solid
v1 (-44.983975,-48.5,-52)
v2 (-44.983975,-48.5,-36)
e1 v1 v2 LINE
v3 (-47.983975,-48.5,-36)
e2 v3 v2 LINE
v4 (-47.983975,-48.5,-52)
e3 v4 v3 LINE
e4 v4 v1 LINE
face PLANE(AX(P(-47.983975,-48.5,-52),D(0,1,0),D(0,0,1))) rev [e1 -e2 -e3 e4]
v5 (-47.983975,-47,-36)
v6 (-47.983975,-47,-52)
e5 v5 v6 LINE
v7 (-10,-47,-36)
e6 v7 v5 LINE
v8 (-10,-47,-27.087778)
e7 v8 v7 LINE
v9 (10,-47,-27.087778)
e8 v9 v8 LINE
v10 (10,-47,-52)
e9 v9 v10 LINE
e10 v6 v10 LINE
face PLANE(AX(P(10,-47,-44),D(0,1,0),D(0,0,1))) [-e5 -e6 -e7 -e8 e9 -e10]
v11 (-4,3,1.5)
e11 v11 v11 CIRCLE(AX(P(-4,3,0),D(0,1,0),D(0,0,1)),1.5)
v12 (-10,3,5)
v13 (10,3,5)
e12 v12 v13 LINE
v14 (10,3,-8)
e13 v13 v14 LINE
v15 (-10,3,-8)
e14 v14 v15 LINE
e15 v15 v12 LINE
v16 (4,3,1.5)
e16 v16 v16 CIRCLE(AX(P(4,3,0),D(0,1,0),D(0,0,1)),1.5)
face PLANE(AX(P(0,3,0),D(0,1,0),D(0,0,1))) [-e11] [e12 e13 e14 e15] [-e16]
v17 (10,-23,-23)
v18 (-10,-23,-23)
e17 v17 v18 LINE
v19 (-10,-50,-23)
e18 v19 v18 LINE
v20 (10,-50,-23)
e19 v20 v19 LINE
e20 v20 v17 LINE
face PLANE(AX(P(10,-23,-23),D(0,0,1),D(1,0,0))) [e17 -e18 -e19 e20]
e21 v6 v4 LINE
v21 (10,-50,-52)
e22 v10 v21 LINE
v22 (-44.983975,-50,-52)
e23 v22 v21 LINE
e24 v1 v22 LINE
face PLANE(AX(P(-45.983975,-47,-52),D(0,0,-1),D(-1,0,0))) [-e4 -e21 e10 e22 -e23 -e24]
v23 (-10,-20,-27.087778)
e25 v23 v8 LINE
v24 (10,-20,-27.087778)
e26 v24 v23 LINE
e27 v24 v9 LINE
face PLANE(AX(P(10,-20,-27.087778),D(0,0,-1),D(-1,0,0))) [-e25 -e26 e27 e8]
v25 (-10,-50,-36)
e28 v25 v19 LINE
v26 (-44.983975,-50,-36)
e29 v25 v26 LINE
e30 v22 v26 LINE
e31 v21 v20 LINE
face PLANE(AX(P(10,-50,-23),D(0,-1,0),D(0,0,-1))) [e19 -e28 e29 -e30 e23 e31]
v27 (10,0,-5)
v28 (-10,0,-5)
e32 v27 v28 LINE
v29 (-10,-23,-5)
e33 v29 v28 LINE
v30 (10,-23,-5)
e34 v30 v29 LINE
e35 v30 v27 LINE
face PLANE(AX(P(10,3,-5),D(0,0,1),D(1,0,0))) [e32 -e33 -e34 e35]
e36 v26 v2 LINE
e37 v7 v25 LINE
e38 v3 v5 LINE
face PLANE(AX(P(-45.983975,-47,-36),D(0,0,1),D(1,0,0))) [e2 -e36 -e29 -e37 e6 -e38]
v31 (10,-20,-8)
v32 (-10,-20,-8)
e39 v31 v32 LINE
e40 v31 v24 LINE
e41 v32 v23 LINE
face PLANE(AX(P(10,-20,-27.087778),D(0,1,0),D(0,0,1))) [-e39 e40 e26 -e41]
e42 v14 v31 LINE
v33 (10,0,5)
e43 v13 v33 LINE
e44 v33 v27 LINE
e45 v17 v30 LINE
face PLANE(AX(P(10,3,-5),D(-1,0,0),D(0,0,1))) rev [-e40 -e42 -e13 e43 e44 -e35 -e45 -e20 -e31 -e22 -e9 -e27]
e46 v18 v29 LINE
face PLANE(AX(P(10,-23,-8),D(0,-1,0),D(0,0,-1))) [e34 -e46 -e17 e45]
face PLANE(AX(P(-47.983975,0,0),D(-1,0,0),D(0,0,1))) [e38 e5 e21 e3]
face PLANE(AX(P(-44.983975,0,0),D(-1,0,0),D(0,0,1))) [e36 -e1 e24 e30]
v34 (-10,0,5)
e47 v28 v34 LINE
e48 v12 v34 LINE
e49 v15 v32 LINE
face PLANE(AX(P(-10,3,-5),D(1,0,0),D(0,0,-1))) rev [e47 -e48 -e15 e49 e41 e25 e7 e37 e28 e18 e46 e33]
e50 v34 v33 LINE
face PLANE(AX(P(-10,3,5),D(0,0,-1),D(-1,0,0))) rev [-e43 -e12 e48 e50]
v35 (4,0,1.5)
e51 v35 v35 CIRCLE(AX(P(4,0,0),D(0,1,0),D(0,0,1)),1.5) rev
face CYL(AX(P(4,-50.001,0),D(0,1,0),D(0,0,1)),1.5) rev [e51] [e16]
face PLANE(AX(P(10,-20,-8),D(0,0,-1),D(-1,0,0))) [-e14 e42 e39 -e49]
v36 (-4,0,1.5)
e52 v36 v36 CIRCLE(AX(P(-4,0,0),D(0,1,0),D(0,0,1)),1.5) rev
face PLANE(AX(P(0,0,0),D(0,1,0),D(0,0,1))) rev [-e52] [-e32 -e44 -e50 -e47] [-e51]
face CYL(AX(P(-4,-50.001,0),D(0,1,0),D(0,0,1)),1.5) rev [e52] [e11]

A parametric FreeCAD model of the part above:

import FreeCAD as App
import Part
import Sketcher

V = App.Vector

doc = App.newDocument("Part")
params = doc.addObject("Spreadsheet::Sheet", "Params")
for row, (alias, value) in enumerate([
    ("sketch1_width", "20 mm"),
    ("sketch1_height", "10 mm"),
    ("pad1_length", "3 mm"),
    ("sketch2_width", "23 mm"),
    ("sketch2_width2", "27 mm"),
    ("sketch2_width3", "3 mm"),
    ("sketch2_height", "21 mm"),
    ("sketch2_height2", "18 mm"),
    ("pad2_length", "20 mm"),
    ("sketch3_diameter", "3 mm"),
    ("sketch4_diameter", "3 mm"),
    ("sketch5_height", "16 mm"),
    ("pad3_length", "3 mm"),
    ("sketch6_width", "3 mm"),
    ("sketch6_height", "16 mm"),
    ("pocket3_length", "1 mm"),
    ("sketch7_height", "16 mm"),
    ("sketch7_width", "1.5 mm"),
    ("pad4_length", "3 mm"),
], start=1):
    params.set(f"A{row}", alias)
    params.set(f"B{row}", "=" + value)
    params.setAlias(f"B{row}", alias)

body = doc.addObject("PartDesign::Body", "Body")

# Sketch on XZ plane
sketch1 = body.newObject("Sketcher::SketchObject", "Sketch")
sketch1.AttachmentSupport = (doc.getObject("XZ_Plane"), [""])
sketch1.MapMode = "FlatFace"
sketch1.addGeometry([
    Part.LineSegment(V(-10, -5, 0), V(-10, 5, 0)),
    Part.LineSegment(V(-10, 5, 0), V(10, 5, 0)),
    Part.LineSegment(V(10, 5, 0), V(10, -5, 0)),
    Part.LineSegment(V(10, -5, 0), V(-10, -5, 0)),
], False)
sketch1.addConstraint([
    Sketcher.Constraint("Coincident", 0, 2, 1, 1),
    Sketcher.Constraint("Coincident", 1, 2, 2, 1),
    Sketcher.Constraint("Coincident", 2, 2, 3, 1),
    Sketcher.Constraint("Coincident", 3, 2, 0, 1),
    Sketcher.Constraint("Vertical", 0),
    Sketcher.Constraint("Horizontal", 1),
    Sketcher.Constraint("Vertical", 2),
    Sketcher.Constraint("Horizontal", 3),
    Sketcher.Constraint("Symmetric", 0, 2, 2, 2, -1, 1),
    Sketcher.Constraint("DistanceX", 1, 1, 1, 2, 20.0),
    Sketcher.Constraint("DistanceY", 0, 1, 0, 2, 10.0),
])
sketch1.setExpression("Constraints[9]", "Params.sketch1_width")
sketch1.setExpression("Constraints[10]", "Params.sketch1_height")
pad1 = body.newObject("PartDesign::Pad", "Pad")
pad1.Profile = sketch1
pad1.setExpression("Length", "Params.pad1_length")
pad1.Reversed = True

# Sketch on YZ plane
sketch2 = body.newObject("Sketcher::SketchObject", "Sketch001")
sketch2.AttachmentSupport = (doc.getObject("YZ_Plane"), [""])
sketch2.MapMode = "FlatFace"
sketch2.AttachmentOffset = App.Placement(V(0, 0, -10), App.Rotation())
sketch2.addGeometry([
    Part.LineSegment(V(3, -8, 0), V(-20, -8, 0)),  # 0
    Part.LineSegment(V(-20, -8, 0), V(-20, -27.1, 0)),  # 1
    Part.LineSegment(V(-20, -27.1, 0), V(-47, -27.1, 0)),  # 2
    Part.LineSegment(V(-47, -27.1, 0), V(-47, -44, 0)),  # 3
    Part.LineSegment(V(-47, -44, 0), V(-50, -44, 0)),  # 4
    Part.LineSegment(V(-50, -44, 0), V(-50, -23, 0)),  # 5
    Part.LineSegment(V(-50, -23, 0), V(-23, -23, 0)),  # 6
    Part.LineSegment(V(-23, -23, 0), V(-23, -5, 0)),  # 7
    Part.LineSegment(V(-23, -5, 0), V(3, -5, 0)),  # 8
    Part.LineSegment(V(3, -5, 0), V(3, -8, 0)),  # 9
], False)
sketch2.addConstraint([
    Sketcher.Constraint("Coincident", 0, 2, 1, 1),
    Sketcher.Constraint("Coincident", 1, 2, 2, 1),
    Sketcher.Constraint("Coincident", 2, 2, 3, 1),
    Sketcher.Constraint("Coincident", 3, 2, 4, 1),
    Sketcher.Constraint("Coincident", 4, 2, 5, 1),
    Sketcher.Constraint("Coincident", 5, 2, 6, 1),
    Sketcher.Constraint("Coincident", 6, 2, 7, 1),
    Sketcher.Constraint("Coincident", 7, 2, 8, 1),
    Sketcher.Constraint("Coincident", 8, 2, 9, 1),
    Sketcher.Constraint("Coincident", 9, 2, 0, 1),
    Sketcher.Constraint("Horizontal", 0),
    Sketcher.Constraint("Vertical", 1),
    Sketcher.Constraint("Horizontal", 2),
    Sketcher.Constraint("Vertical", 3),
    Sketcher.Constraint("Horizontal", 4),
    Sketcher.Constraint("Vertical", 5),
    Sketcher.Constraint("Horizontal", 6),
    Sketcher.Constraint("Vertical", 7),
    Sketcher.Constraint("Horizontal", 8),
    Sketcher.Constraint("Vertical", 9),
    Sketcher.Constraint("Equal", 2, 6),
    Sketcher.Constraint("Equal", 4, 9),
    Sketcher.Constraint("DistanceX", 0, 2, 0, 1, 23.0),
    Sketcher.Constraint("DistanceX", 2, 2, 2, 1, 27.0),
    Sketcher.Constraint("DistanceX", 4, 2, 4, 1, 3.0),
    Sketcher.Constraint("DistanceY", 5, 1, 5, 2, 21.0),
    Sketcher.Constraint("DistanceY", 7, 1, 7, 2, 18.0),
    Sketcher.Constraint("DistanceX", 0, 2, -1, 1, 20.0),
    Sketcher.Constraint("DistanceY", 0, 2, -1, 1, 8.0),
    Sketcher.Constraint("DistanceY", 1, 2, 1, 1, 19.087778),
])
sketch2.setExpression("Constraints[22]", "Params.sketch2_width")
sketch2.setExpression("Constraints[23]", "Params.sketch2_width2")
sketch2.setExpression("Constraints[24]", "Params.sketch2_width3")
sketch2.setExpression("Constraints[25]", "Params.sketch2_height")
sketch2.setExpression("Constraints[26]", "Params.sketch2_height2")
pad2 = body.newObject("PartDesign::Pad", "Pad001")
pad2.Profile = sketch2
pad2.setExpression("Length", "Params.pad2_length")

# Sketch on XZ plane
sketch3 = body.newObject("Sketcher::SketchObject", "Sketch002")
sketch3.AttachmentSupport = (doc.getObject("XZ_Plane"), [""])
sketch3.MapMode = "FlatFace"
sketch3.AttachmentOffset = App.Placement(V(0, 0, -3), App.Rotation())
sketch3.addGeometry(Part.Circle(V(4, 0, 0), V(0, 0, 1), 1.5), False)
sketch3.addConstraint([
    Sketcher.Constraint("PointOnObject", 0, 3, -1),
    Sketcher.Constraint("Diameter", 0, 3.0),
    Sketcher.Constraint("DistanceX", -1, 1, 0, 3, 4.0),
])
sketch3.setExpression("Constraints[1]", "Params.sketch3_diameter")
pocket1 = body.newObject("PartDesign::Pocket", "Pocket")
pocket1.Profile = sketch3
pocket1.Type = "UpToFirst"
pocket1.Reversed = True

# Sketch on XZ plane
sketch4 = body.newObject("Sketcher::SketchObject", "Sketch003")
sketch4.AttachmentSupport = (doc.getObject("XZ_Plane"), [""])
sketch4.MapMode = "FlatFace"
sketch4.AttachmentOffset = App.Placement(V(0, 0, -3), App.Rotation())
sketch4.addGeometry(Part.Circle(V(-4, 0, 0), V(0, 0, 1), 1.5), False)
sketch4.addConstraint([
    Sketcher.Constraint("PointOnObject", 0, 3, -1),
    Sketcher.Constraint("Diameter", 0, 3.0),
    Sketcher.Constraint("DistanceX", 0, 3, -1, 1, 4.0),
])
sketch4.setExpression("Constraints[1]", "Params.sketch4_diameter")
pocket2 = body.newObject("PartDesign::Pocket", "Pocket001")
pocket2.Profile = sketch4
pocket2.Type = "UpToFirst"
pocket2.Reversed = True

# Sketch on XZ plane
sketch5 = body.newObject("Sketcher::SketchObject", "Sketch004")
sketch5.AttachmentSupport = (doc.getObject("XZ_Plane"), [""])
sketch5.MapMode = "FlatFace"
sketch5.AttachmentOffset = App.Placement(V(0, 0, 50), App.Rotation())
sketch5.addGeometry([
    Part.LineSegment(V(-46, -36, 0), V(-46, -52, 0)),
    Part.LineSegment(V(-46, -52, 0), V(10, -52, 0)),
    Part.LineSegment(V(10, -52, 0), V(10, -36, 0)),
    Part.LineSegment(V(10, -36, 0), V(-46, -36, 0)),
], False)
sketch5.addConstraint([
    Sketcher.Constraint("Coincident", 0, 2, 1, 1),
    Sketcher.Constraint("Coincident", 1, 2, 2, 1),
    Sketcher.Constraint("Coincident", 2, 2, 3, 1),
    Sketcher.Constraint("Coincident", 3, 2, 0, 1),
    Sketcher.Constraint("Vertical", 0),
    Sketcher.Constraint("Horizontal", 1),
    Sketcher.Constraint("Vertical", 2),
    Sketcher.Constraint("Horizontal", 3),
    Sketcher.Constraint("DistanceY", 0, 2, 0, 1, 16.0),
    Sketcher.Constraint("DistanceY", 0, 2, -1, 1, 52.0),
    Sketcher.Constraint("DistanceX", -1, 1, 1, 2, 10.0),
    Sketcher.Constraint("DistanceX", 1, 1, 1, 2, 55.983975),
])
sketch5.setExpression("Constraints[8]", "Params.sketch5_height")
pad3 = body.newObject("PartDesign::Pad", "Pad002")
pad3.Profile = sketch5
pad3.setExpression("Length", "Params.pad3_length")
pad3.Reversed = True

# Sketch on YZ plane
sketch6 = body.newObject("Sketcher::SketchObject", "Sketch005")
sketch6.AttachmentSupport = (doc.getObject("YZ_Plane"), [""])
sketch6.MapMode = "FlatFace"
sketch6.AttachmentOffset = App.Placement(V(0, 0, -45.983975), App.Rotation())
sketch6.addGeometry([
    Part.LineSegment(V(-47, -52, 0), V(-50, -52, 0)),
    Part.LineSegment(V(-50, -52, 0), V(-50, -36, 0)),
    Part.LineSegment(V(-50, -36, 0), V(-47, -36, 0)),
    Part.LineSegment(V(-47, -36, 0), V(-47, -52, 0)),
], False)
sketch6.addConstraint([
    Sketcher.Constraint("Coincident", 0, 2, 1, 1),
    Sketcher.Constraint("Coincident", 1, 2, 2, 1),
    Sketcher.Constraint("Coincident", 2, 2, 3, 1),
    Sketcher.Constraint("Coincident", 3, 2, 0, 1),
    Sketcher.Constraint("Horizontal", 0),
    Sketcher.Constraint("Vertical", 1),
    Sketcher.Constraint("Horizontal", 2),
    Sketcher.Constraint("Vertical", 3),
    Sketcher.Constraint("DistanceX", 0, 2, 0, 1, 3.0),
    Sketcher.Constraint("DistanceY", 1, 1, 1, 2, 16.0),
    Sketcher.Constraint("DistanceX", 0, 2, -1, 1, 50.0),
    Sketcher.Constraint("DistanceY", 0, 2, -1, 1, 52.0),
])
sketch6.setExpression("Constraints[8]", "Params.sketch6_width")
sketch6.setExpression("Constraints[9]", "Params.sketch6_height")
pocket3 = body.newObject("PartDesign::Pocket", "Pocket002")
pocket3.Profile = sketch6
pocket3.setExpression("Length", "Params.pocket3_length")
pocket3.Reversed = True

# Sketch on YZ plane
sketch7 = body.newObject("Sketcher::SketchObject", "Sketch006")
sketch7.AttachmentSupport = (doc.getObject("YZ_Plane"), [""])
sketch7.MapMode = "FlatFace"
sketch7.AttachmentOffset = App.Placement(V(0, 0, -44.983975), App.Rotation())
sketch7.addGeometry([
    Part.LineSegment(V(-47, -52, 0), V(-48.5, -52, 0)),
    Part.LineSegment(V(-48.5, -52, 0), V(-48.5, -36, 0)),
    Part.LineSegment(V(-48.5, -36, 0), V(-47, -36, 0)),
    Part.LineSegment(V(-47, -36, 0), V(-47, -52, 0)),
], False)
sketch7.addConstraint([
    Sketcher.Constraint("Coincident", 0, 2, 1, 1),
    Sketcher.Constraint("Coincident", 1, 2, 2, 1),
    Sketcher.Constraint("Coincident", 2, 2, 3, 1),
    Sketcher.Constraint("Coincident", 3, 2, 0, 1),
    Sketcher.Constraint("Horizontal", 0),
    Sketcher.Constraint("Vertical", 1),
    Sketcher.Constraint("Horizontal", 2),
    Sketcher.Constraint("Vertical", 3),
    Sketcher.Constraint("DistanceY", 1, 1, 1, 2, 16.0),
    Sketcher.Constraint("DistanceX", 0, 2, 0, 1, 1.5),
    Sketcher.Constraint("DistanceY", 0, 2, -1, 1, 52.0),
    Sketcher.Constraint("DistanceX", 2, 2, -1, 1, 47.0),
])
sketch7.setExpression("Constraints[8]", "Params.sketch7_height")
sketch7.setExpression("Constraints[9]", "Params.sketch7_width")
pad4 = body.newObject("PartDesign::Pad", "Pad003")
pad4.Profile = sketch7
pad4.setExpression("Length", "Params.pad4_length")
pad4.Reversed = True

doc.recompute()
